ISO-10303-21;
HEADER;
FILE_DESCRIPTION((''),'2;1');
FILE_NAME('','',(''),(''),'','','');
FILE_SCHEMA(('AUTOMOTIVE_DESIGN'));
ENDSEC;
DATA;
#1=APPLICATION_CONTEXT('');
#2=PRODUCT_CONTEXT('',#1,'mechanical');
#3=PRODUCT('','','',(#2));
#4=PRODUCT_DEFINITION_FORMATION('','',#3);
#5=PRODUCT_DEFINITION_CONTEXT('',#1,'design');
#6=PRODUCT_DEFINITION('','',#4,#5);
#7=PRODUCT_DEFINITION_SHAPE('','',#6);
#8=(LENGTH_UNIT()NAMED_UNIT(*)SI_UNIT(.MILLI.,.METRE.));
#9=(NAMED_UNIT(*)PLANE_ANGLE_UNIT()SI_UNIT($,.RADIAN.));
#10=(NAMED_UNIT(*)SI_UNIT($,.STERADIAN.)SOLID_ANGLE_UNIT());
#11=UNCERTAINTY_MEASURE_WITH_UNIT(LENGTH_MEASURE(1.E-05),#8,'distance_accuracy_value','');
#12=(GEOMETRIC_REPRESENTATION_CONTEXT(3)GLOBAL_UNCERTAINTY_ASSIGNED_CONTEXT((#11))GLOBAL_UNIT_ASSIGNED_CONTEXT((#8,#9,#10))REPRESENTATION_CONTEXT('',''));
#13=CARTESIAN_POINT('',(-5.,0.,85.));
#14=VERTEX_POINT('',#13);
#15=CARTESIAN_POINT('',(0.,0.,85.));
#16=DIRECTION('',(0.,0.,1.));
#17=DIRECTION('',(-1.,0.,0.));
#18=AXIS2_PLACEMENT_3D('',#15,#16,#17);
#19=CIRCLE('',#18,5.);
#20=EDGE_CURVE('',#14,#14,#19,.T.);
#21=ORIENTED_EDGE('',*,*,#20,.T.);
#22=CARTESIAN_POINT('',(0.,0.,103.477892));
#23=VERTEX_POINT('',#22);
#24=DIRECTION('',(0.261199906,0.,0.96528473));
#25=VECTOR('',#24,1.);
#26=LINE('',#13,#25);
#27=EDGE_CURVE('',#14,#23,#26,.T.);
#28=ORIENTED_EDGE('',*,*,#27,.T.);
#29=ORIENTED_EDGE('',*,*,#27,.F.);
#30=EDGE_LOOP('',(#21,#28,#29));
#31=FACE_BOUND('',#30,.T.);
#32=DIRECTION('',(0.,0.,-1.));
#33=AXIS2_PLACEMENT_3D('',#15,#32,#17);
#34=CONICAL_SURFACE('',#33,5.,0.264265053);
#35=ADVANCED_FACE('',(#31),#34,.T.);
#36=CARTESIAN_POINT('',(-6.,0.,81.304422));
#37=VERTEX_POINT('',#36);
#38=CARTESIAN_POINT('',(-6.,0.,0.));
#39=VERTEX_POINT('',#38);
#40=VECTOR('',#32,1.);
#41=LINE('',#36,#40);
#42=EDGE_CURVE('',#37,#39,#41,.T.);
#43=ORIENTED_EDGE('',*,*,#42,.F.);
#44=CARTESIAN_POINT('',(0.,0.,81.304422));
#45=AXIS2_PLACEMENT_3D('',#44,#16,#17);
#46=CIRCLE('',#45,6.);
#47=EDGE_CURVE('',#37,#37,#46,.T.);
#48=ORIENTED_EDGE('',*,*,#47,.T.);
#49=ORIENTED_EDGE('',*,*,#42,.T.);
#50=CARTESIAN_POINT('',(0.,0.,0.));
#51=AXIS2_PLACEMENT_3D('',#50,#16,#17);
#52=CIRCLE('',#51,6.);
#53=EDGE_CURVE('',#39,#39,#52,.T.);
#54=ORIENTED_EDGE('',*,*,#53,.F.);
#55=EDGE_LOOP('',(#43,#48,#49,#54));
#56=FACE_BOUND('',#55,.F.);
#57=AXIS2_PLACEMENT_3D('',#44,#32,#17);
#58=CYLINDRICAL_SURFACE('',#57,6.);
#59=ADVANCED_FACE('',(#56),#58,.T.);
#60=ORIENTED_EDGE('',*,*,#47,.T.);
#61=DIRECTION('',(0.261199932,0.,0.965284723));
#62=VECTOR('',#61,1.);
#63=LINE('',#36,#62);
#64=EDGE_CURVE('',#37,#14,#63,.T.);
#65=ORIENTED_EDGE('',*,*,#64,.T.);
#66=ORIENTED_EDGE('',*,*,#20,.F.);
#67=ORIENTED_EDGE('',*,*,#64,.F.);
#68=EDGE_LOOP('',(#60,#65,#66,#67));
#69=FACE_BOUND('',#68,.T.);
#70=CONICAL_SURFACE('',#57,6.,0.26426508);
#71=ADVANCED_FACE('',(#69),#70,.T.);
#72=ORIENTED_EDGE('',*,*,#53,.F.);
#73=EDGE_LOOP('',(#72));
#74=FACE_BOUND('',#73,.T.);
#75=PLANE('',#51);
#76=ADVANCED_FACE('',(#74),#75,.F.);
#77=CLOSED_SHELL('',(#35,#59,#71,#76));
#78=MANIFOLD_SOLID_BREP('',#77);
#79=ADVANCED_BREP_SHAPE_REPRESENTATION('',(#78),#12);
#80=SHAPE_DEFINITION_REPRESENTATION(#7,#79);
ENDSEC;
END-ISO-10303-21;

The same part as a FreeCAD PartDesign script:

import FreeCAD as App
import Part
import Sketcher
Q = App.Units.Quantity

doc = App.newDocument("Part")
params = doc.addObject("Spreadsheet::Sheet", "Params")
for row, (alias, value) in enumerate([
    ("sketch1_width", "6 mm"),
    ("revolution_angle", "360 deg"),
], start=1):
    params.set(f"A{row}", alias)
    params.set(f"B{row}", "=" + value)
    params.setAlias(f"B{row}", alias)

body = doc.addObject("PartDesign::Body", "Body")

# Sketch on XZ plane
sketch1 = doc.addObject("Sketcher::SketchObject", "Sketch")
body.addObject(sketch1)
sketch1.AttachmentSupport = (doc.XZ_Plane, [""])
sketch1.MapMode = "FlatFace"
sketch1.addGeometry([
    Part.LineSegment(App.Vector(-6, 0, 0), App.Vector(0, 0, 0)),  # 0
    Part.LineSegment(App.Vector(0, 0, 0), App.Vector(0, 103.5, 0)),  # 1
    Part.LineSegment(App.Vector(0, 103.5, 0), App.Vector(-5, 85, 0)),  # 2
    Part.LineSegment(App.Vector(-5, 85, 0), App.Vector(-6, 81.3, 0)),  # 3
    Part.LineSegment(App.Vector(-6, 81.3, 0), App.Vector(-6, 0, 0)),  # 4
], False)
sketch1.addConstraint([
    Sketcher.Constraint("Coincident", 0, 2, 1, 1),
    Sketcher.Constraint("Coincident", 1, 2, 2, 1),
    Sketcher.Constraint("Coincident", 2, 2, 3, 1),
    Sketcher.Constraint("Coincident", 3, 2, 4, 1),
    Sketcher.Constraint("Coincident", 4, 2, 0, 1),
    Sketcher.Constraint("Horizontal", 0),
    Sketcher.Constraint("Vertical", 1),
    Sketcher.Constraint("Vertical", 4),
    Sketcher.Constraint("Coincident", 0, 2, -1, 1),
    Sketcher.Constraint("Parallel", 2, 3),
    Sketcher.Constraint("DistanceX", 0, 1, 0, 2, Q("6 mm")),
    Sketcher.Constraint("DistanceX", 2, 2, -1, 1, Q("5 mm")),
    Sketcher.Constraint("DistanceY", -1, 1, 2, 2, Q("85 mm")),
    Sketcher.Constraint("DistanceY", 1, 1, 1, 2, Q("103.477892 mm")),
])
sketch1.setExpression("Constraints[10]", "Params.sketch1_width")
revolution = doc.addObject("PartDesign::Revolution", "Revolution")
body.addObject(revolution)
revolution.Profile = sketch1
revolution.ReferenceAxis = (sketch1, ["V_Axis"])
revolution.setExpression("Angle", "Params.revolution_angle")

doc.recompute()
